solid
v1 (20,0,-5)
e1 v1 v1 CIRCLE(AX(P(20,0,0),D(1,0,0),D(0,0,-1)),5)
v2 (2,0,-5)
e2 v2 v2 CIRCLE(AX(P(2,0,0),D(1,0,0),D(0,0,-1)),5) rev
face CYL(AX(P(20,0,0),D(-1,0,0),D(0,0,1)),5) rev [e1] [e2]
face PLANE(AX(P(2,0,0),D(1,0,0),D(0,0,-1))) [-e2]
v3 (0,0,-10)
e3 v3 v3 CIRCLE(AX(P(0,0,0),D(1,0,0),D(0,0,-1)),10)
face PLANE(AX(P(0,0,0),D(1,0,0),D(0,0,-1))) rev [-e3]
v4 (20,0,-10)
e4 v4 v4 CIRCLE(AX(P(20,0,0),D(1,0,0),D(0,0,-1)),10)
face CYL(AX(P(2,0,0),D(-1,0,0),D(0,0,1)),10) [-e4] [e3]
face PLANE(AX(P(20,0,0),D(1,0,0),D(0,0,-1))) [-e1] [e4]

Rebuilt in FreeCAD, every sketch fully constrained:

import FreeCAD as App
import Part
import Sketcher

V = App.Vector

doc = App.newDocument("Part")
params = doc.addObject("Spreadsheet::Sheet", "Params")
for row, (alias, value) in enumerate([
    ("sketch1_diameter", "20 mm"),
    ("pad1_length", "2 mm"),
    ("sketch2_diameter", "20 mm"),
    ("sketch2_diameter2", "10 mm"),
    ("pad2_length", "18 mm"),
], start=1):
    params.set(f"A{row}", alias)
    params.set(f"B{row}", "=" + value)
    params.setAlias(f"B{row}", alias)

body = doc.addObject("PartDesign::Body", "Body")

sketch1 = body.newObject("Sketcher::SketchObject", "Sketch")
sketch1.AttachmentSupport = (doc.getObject("YZ_Plane"), [""])
sketch1.MapMode = "FlatFace"
sketch1.addGeometry(Part.Circle(V(0, 0, 0), V(0, 0, 1), 10), False)
sketch1.addConstraint(Sketcher.Constraint("Coincident", 0, 3, -1, 1))
sketch1.addConstraint(Sketcher.Constraint("Diameter", 0, 20.0))
sketch1.setExpression("Constraints[1]", "Params.sketch1_diameter")
pad1 = body.newObject("PartDesign::Pad", "Pad")
pad1.Profile = sketch1
pad1.setExpression("Length", "Params.pad1_length")

sketch2 = body.newObject("Sketcher::SketchObject", "Sketch001")
sketch2.AttachmentSupport = (doc.getObject("YZ_Plane"), [""])
sketch2.MapMode = "FlatFace"
sketch2.AttachmentOffset = App.Placement(V(0, 0, 2), App.Rotation())
sketch2.addGeometry(Part.Circle(V(0, 0, 0), V(0, 0, 1), 10), False)
sketch2.addGeometry(Part.Circle(V(0, 0, 0), V(0, 0, 1), 5), False)
sketch2.addConstraint(Sketcher.Constraint("Coincident", 0, 3, -1, 1))
sketch2.addConstraint(Sketcher.Constraint("Coincident", 1, 3, -1, 1))
sketch2.addConstraint(Sketcher.Constraint("Diameter", 0, 20.0))
sketch2.addConstraint(Sketcher.Constraint("Diameter", 1, 10.0))
sketch2.setExpression("Constraints[2]", "Params.sketch2_diameter")
sketch2.setExpression("Constraints[3]", "Params.sketch2_diameter2")
pad2 = body.newObject("PartDesign::Pad", "Pad001")
pad2.Profile = sketch2
pad2.setExpression("Length", "Params.pad2_length")

doc.recompute()
